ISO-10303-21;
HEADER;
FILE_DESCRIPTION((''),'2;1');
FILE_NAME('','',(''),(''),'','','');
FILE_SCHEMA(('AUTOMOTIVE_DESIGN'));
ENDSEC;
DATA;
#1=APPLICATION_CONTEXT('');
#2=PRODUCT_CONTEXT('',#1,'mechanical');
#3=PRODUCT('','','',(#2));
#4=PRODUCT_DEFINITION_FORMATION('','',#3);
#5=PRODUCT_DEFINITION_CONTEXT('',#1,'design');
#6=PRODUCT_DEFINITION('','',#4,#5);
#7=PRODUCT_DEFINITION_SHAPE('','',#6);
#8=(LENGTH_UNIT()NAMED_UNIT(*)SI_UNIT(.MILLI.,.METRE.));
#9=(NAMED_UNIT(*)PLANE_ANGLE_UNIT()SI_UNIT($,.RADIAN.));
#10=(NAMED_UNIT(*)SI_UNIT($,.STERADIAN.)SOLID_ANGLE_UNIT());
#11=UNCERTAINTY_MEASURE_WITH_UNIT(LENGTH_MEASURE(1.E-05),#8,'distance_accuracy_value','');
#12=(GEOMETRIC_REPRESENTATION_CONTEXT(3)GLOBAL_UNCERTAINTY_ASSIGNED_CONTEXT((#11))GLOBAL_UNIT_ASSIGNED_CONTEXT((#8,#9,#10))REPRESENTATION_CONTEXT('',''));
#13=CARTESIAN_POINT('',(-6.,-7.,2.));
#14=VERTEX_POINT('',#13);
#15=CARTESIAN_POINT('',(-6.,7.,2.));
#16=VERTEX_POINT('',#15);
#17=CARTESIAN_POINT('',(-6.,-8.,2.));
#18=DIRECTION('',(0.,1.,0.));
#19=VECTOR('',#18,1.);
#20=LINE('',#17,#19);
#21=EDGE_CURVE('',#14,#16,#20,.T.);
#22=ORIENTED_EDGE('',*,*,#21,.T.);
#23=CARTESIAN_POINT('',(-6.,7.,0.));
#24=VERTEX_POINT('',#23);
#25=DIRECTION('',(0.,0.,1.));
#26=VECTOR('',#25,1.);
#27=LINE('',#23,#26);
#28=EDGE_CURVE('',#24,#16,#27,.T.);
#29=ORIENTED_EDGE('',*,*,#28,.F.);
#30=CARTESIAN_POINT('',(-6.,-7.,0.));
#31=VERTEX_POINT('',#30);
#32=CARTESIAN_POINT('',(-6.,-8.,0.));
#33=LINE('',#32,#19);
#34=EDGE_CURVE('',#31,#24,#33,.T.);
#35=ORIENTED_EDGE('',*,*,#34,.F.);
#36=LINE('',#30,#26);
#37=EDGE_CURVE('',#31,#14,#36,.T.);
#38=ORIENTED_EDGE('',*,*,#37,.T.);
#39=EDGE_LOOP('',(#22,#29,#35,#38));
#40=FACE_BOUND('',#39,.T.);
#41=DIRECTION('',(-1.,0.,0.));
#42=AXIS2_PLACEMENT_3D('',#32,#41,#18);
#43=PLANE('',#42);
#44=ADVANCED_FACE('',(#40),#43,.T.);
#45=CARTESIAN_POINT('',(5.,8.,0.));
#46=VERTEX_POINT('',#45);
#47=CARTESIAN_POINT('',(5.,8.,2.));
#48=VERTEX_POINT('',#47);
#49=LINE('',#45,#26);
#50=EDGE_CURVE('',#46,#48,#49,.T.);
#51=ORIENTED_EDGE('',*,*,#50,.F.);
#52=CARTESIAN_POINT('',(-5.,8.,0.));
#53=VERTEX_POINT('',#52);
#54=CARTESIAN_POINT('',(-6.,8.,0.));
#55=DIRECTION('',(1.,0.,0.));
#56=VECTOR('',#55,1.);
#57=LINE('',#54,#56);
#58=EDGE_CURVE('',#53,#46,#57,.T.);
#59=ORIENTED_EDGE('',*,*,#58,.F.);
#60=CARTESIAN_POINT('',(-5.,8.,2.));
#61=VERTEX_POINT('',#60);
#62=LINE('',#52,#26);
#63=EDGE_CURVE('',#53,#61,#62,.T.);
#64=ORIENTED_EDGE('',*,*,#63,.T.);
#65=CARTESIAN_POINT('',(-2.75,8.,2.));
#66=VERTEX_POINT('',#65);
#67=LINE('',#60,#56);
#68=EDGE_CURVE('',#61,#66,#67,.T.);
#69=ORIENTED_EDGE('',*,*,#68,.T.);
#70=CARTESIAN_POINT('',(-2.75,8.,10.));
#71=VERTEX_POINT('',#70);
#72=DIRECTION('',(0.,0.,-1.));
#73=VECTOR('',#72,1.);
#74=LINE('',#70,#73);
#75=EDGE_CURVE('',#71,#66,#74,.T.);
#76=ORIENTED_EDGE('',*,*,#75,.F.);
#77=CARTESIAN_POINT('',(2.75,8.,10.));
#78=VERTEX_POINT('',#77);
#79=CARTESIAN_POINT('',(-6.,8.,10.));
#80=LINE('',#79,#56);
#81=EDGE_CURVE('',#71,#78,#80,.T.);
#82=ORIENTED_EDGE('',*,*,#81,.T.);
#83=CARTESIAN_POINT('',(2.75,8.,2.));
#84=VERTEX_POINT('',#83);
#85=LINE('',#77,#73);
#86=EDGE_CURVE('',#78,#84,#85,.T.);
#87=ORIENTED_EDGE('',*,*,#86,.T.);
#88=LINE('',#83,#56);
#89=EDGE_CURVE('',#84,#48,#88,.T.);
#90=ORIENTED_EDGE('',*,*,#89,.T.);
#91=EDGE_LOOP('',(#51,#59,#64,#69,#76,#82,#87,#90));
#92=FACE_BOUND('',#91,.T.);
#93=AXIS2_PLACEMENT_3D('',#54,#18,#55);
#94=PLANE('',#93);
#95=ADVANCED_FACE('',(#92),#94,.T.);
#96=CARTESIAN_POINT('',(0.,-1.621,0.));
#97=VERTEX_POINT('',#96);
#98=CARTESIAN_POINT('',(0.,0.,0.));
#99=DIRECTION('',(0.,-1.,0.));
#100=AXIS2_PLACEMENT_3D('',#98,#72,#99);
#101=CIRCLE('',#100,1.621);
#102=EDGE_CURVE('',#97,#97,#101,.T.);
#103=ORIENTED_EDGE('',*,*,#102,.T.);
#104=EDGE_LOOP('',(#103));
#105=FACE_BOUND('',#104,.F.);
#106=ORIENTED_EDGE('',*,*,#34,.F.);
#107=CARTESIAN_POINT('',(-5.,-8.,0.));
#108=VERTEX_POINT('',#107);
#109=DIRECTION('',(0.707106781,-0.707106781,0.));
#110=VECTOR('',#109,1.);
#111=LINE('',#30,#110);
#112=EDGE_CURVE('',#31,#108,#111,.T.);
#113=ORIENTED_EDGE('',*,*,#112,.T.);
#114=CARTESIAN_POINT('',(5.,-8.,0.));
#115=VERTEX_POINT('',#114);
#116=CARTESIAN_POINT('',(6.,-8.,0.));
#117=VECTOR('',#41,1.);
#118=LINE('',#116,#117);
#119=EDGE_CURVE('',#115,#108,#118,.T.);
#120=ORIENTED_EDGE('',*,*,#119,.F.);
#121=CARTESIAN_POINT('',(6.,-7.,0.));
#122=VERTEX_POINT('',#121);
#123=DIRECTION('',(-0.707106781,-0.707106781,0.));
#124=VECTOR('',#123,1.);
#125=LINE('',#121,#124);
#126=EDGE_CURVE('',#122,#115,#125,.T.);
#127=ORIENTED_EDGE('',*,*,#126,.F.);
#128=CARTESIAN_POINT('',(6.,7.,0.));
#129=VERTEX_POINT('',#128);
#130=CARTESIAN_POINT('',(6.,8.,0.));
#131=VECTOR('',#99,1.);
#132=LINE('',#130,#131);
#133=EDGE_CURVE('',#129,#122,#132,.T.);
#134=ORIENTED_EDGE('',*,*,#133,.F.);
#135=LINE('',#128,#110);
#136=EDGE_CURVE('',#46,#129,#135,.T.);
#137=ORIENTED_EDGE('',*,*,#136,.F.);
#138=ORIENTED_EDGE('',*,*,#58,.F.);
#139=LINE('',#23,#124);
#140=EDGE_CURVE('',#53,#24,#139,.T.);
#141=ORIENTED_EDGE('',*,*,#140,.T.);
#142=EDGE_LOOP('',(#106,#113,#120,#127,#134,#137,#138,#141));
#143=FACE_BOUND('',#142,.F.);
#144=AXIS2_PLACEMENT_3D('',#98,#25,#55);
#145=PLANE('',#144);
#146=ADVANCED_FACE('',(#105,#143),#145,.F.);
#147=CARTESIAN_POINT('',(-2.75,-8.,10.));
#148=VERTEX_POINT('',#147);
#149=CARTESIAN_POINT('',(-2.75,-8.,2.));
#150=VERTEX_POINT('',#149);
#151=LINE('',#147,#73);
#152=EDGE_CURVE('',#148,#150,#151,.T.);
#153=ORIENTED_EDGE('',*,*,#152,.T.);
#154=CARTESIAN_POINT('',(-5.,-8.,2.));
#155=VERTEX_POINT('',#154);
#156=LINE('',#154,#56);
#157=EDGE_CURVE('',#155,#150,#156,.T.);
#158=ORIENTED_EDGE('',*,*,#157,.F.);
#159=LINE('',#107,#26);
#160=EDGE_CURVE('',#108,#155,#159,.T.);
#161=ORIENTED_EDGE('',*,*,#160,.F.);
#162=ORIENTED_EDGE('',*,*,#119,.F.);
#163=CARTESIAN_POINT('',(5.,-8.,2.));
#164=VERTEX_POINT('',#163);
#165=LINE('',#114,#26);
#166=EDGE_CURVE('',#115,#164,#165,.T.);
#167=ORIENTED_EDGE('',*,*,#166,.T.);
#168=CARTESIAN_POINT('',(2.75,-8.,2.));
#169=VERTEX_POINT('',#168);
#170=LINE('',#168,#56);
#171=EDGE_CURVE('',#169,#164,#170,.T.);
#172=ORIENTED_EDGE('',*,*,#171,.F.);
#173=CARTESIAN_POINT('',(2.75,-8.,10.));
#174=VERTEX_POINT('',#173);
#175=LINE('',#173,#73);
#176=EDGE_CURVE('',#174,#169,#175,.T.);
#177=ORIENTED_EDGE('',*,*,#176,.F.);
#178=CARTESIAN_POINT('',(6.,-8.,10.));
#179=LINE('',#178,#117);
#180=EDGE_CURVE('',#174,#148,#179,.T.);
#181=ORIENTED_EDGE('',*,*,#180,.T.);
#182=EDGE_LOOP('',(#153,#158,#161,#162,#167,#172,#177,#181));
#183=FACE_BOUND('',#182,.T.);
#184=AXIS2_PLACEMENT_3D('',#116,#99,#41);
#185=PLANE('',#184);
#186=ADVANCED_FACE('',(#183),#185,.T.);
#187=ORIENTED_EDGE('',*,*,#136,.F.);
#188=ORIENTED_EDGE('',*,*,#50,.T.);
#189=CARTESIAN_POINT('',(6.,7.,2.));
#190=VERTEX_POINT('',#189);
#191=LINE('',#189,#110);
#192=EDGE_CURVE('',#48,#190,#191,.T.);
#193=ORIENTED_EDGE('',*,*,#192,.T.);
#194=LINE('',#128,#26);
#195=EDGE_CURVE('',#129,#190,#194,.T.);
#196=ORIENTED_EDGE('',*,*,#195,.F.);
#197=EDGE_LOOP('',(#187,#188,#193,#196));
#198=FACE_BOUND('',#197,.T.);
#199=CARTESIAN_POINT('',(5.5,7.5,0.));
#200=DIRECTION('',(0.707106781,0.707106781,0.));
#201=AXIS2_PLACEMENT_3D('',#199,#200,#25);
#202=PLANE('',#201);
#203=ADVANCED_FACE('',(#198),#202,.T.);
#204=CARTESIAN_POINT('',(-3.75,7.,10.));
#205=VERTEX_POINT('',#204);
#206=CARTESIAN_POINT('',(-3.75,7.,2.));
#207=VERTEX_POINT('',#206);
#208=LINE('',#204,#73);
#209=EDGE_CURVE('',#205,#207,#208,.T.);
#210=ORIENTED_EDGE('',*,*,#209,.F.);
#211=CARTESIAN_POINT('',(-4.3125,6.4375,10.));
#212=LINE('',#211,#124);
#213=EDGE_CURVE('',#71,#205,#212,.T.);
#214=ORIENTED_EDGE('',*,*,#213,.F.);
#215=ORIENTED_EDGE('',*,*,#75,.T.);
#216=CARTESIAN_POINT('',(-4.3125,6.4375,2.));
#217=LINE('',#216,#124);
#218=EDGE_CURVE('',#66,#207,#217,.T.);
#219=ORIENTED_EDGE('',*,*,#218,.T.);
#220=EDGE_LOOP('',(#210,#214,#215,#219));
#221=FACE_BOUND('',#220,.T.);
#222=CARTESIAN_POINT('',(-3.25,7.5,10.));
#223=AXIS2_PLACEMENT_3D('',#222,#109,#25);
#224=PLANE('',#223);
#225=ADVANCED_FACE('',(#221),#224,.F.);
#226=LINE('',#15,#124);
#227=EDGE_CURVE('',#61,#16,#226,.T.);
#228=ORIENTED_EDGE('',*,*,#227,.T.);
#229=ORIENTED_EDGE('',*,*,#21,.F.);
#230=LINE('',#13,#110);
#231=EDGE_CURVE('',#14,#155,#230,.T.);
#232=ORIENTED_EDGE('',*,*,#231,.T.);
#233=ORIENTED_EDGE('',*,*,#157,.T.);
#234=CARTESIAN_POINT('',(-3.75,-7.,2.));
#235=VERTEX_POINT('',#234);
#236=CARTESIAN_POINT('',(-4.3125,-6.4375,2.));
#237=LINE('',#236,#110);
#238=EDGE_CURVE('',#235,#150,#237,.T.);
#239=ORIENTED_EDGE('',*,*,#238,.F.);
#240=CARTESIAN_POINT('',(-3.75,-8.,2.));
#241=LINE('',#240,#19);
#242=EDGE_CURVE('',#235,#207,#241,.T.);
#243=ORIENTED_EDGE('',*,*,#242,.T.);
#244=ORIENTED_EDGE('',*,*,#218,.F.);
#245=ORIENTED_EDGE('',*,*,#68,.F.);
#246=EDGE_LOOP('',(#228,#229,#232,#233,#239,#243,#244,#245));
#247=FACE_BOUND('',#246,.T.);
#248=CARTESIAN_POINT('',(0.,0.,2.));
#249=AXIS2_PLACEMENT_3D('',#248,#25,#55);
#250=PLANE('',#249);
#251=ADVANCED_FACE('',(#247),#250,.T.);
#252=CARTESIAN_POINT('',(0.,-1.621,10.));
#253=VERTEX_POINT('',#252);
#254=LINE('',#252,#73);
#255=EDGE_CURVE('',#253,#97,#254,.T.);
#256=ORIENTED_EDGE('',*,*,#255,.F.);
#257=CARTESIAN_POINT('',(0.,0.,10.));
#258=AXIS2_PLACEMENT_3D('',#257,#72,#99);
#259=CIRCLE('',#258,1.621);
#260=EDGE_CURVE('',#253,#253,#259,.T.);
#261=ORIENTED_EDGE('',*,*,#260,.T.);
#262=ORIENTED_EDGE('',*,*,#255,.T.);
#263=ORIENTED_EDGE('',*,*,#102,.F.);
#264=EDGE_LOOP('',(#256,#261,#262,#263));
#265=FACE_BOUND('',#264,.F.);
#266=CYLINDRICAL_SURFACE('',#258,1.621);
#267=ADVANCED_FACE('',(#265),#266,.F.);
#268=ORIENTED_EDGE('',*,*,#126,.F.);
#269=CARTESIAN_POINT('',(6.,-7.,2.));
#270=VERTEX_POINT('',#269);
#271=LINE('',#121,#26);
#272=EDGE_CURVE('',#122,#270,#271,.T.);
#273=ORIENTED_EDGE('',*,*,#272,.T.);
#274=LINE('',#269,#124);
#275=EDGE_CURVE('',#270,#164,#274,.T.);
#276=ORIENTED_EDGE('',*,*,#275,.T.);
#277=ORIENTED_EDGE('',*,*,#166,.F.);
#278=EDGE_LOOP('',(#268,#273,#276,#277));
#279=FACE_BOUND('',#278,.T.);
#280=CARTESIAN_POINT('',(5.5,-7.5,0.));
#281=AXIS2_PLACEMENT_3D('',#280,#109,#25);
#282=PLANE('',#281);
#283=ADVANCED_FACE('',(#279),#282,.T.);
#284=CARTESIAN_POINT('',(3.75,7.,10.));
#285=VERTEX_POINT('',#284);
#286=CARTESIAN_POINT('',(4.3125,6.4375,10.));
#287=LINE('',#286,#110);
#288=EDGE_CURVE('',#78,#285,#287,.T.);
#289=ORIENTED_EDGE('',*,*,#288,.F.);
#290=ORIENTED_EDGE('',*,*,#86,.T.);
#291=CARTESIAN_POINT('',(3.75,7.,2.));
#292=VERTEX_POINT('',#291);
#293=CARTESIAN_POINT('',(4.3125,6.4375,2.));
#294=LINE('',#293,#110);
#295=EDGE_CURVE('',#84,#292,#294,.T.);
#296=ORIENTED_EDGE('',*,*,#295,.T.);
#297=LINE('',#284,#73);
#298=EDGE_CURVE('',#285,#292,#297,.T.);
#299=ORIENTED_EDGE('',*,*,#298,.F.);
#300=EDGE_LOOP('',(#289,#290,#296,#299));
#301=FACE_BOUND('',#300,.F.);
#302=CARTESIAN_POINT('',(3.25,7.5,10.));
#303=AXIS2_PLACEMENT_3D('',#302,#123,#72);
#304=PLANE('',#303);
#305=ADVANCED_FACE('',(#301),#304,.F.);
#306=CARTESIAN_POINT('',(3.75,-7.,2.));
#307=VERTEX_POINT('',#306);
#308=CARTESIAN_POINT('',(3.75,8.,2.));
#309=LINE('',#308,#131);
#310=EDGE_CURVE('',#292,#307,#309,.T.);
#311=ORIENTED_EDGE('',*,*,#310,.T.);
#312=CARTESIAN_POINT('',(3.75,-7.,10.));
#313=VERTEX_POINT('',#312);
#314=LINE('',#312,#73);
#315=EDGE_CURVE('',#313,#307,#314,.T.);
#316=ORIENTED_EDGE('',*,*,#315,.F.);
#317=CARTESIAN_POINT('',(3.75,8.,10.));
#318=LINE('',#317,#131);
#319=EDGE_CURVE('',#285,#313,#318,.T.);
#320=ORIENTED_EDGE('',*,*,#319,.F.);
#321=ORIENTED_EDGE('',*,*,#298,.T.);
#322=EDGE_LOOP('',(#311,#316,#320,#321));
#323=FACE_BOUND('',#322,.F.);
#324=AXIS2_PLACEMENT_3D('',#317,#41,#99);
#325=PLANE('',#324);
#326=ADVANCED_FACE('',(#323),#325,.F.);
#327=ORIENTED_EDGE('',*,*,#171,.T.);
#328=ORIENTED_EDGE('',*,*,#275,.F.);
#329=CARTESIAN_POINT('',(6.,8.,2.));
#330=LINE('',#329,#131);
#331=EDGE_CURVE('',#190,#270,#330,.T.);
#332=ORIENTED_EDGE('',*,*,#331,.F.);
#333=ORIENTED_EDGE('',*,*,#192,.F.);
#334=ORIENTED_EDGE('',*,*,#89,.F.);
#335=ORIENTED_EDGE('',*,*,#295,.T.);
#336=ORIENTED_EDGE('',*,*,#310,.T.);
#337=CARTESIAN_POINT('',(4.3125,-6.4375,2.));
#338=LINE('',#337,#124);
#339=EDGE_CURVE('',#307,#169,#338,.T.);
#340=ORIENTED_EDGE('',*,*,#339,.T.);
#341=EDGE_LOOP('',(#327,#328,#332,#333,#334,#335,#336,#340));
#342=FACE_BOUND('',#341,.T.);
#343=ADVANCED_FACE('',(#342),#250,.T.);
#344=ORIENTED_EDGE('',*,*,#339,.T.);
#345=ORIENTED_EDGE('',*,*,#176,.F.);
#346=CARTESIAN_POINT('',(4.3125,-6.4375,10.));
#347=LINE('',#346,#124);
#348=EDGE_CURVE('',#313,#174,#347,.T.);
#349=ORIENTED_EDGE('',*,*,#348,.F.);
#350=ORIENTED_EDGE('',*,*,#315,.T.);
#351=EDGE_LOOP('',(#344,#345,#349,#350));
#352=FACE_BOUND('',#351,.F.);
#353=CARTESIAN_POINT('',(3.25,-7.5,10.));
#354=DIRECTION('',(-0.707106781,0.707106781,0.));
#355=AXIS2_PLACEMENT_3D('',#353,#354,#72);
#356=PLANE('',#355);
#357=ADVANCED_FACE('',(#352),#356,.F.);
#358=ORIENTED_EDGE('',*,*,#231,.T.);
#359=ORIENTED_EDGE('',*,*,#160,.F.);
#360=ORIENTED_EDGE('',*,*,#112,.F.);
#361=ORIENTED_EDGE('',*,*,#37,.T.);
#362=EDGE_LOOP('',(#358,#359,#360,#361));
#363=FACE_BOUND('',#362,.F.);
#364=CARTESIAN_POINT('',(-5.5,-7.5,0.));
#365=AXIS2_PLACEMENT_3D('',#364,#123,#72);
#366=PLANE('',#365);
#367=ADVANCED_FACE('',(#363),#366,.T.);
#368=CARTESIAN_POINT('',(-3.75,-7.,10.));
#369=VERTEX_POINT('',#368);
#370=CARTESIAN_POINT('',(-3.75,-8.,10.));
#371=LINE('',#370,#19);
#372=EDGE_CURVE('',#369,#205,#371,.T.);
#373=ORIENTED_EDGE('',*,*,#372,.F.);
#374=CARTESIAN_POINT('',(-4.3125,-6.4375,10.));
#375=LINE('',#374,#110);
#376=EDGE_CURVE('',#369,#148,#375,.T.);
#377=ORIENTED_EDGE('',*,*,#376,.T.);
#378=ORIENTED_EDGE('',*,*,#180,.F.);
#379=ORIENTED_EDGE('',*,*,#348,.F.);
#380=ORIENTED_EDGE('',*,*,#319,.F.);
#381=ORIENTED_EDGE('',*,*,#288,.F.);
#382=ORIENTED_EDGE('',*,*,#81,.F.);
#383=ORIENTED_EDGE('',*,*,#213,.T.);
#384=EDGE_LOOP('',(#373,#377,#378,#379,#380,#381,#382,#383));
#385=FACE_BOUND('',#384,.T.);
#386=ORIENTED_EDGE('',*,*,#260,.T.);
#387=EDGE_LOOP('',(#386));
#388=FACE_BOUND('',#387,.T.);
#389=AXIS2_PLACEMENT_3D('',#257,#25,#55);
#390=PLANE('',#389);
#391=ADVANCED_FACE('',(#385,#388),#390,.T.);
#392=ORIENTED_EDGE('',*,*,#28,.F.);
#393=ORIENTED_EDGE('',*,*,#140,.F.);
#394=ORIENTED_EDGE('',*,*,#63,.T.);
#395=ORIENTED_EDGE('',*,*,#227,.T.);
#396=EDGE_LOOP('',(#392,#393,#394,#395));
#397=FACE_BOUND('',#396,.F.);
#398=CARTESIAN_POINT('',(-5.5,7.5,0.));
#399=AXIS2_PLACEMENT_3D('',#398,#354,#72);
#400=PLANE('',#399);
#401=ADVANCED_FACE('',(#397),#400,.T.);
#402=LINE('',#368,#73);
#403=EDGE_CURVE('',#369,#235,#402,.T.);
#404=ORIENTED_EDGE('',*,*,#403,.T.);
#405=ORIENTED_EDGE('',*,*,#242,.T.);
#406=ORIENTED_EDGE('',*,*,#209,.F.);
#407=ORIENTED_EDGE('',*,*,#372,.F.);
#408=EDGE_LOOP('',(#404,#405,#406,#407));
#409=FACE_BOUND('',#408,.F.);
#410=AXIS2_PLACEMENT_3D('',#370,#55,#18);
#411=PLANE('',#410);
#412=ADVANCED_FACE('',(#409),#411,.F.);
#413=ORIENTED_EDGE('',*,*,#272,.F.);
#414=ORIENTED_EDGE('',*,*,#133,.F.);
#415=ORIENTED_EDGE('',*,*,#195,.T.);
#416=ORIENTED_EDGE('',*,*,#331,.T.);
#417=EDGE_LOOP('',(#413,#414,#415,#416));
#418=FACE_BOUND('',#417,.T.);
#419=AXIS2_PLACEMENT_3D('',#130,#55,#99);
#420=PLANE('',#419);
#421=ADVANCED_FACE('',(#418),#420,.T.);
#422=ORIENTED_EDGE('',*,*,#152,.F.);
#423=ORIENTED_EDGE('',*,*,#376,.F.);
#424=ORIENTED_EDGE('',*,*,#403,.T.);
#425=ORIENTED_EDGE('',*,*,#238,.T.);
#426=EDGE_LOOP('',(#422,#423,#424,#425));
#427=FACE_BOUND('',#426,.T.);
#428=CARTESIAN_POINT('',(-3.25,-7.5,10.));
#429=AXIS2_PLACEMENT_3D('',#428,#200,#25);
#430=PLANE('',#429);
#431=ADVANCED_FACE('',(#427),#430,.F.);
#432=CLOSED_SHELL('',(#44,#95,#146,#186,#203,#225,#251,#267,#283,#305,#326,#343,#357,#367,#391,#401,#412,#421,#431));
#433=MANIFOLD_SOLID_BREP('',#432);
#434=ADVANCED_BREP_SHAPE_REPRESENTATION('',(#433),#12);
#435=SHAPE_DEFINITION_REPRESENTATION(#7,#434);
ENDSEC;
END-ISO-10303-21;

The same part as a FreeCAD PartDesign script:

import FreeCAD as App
import Part
import Sketcher

V = App.Vector


def edges_at(feature, points):
    """Names of the edges that pass closest to the given points."""
    edges = feature.Shape.Edges
    near = lambda p: min(range(len(edges)), key=lambda i: edges[i].distToShape(Part.Vertex(*p))[0])
    return sorted({f"Edge{near(p) + 1}" for p in points})


def add_polygon(sketch, points):
    """Adds a closed chain of lines whose ends are joined by coincident constraints."""
    first, n = sketch.GeometryCount, len(points)
    for a, b in zip(points, points[1:] + points[:1]):
        sketch.addGeometry(Part.LineSegment(App.Vector(*a, 0), App.Vector(*b, 0)), False)
    for i in range(n):
        sketch.addConstraint(Sketcher.Constraint("Coincident", first + i, 2, first + (i + 1) % n, 1))

doc = App.newDocument("Part")
body = doc.addObject("PartDesign::Body", "Body")

sketch1 = body.newObject("Sketcher::SketchObject", "Sketch")
sketch1.AttachmentSupport = (doc.getObject("XY_Plane"), [""])
sketch1.MapMode = "FlatFace"
add_polygon(sketch1, [(6, 8), (-6, 8), (-6, -8), (6, -8)])
sketch1.addConstraint([
    Sketcher.Constraint("Horizontal", 0),
    Sketcher.Constraint("Vertical", 1),
    Sketcher.Constraint("Horizontal", 2),
    Sketcher.Constraint("Vertical", 3),
    Sketcher.Constraint("Symmetric", 0, 2, 2, 2, -1, 1),
    Sketcher.Constraint("DistanceX", 0, 2, 0, 1, 12.0),
    Sketcher.Constraint("DistanceY", 1, 2, 1, 1, 16.0),
])
pad1 = body.newObject("PartDesign::Pad", "Pad")
pad1.Profile = sketch1
pad1.Length = 10

sketch2 = body.newObject("Sketcher::SketchObject", "Sketch001")
sketch2.AttachmentSupport = (doc.getObject("XY_Plane"), [""])
sketch2.MapMode = "FlatFace"
sketch2.AttachmentOffset = App.Placement(V(0, 0, 10), App.Rotation())
add_polygon(sketch2, [(3.8, -8), (6, -8), (6, 8), (3.8, 8)])
add_polygon(sketch2, [(-6, -8), (-3.8, -8), (-3.8, 8), (-6, 8)])
sketch2.addConstraint([
    Sketcher.Constraint("Horizontal", 0),
    Sketcher.Constraint("Vertical", 1),
    Sketcher.Constraint("Horizontal", 2),
    Sketcher.Constraint("Vertical", 3),
    Sketcher.Constraint("Horizontal", 4),
    Sketcher.Constraint("Vertical", 5),
    Sketcher.Constraint("Horizontal", 6),
    Sketcher.Constraint("Vertical", 7),
    Sketcher.Constraint("Symmetric", 2, 2, 4, 2, -1, 1),
    Sketcher.Constraint("Symmetric", 0, 2, 6, 2, -1, 1),
    Sketcher.Constraint("Horizontal", 3, 2, 4, 2),
    Sketcher.Constraint("DistanceY", 1, 1, 1, 2, 16.0),
    Sketcher.Constraint("DistanceX", 6, 2, 1, 2, 12.0),
    Sketcher.Constraint("DistanceX", 4, 2, 3, 2, 7.5),
])
pocket1 = body.newObject("PartDesign::Pocket", "Pocket")
pocket1.Profile = sketch2
pocket1.Length = 8
doc.recompute()

chamfer = body.newObject("PartDesign::Chamfer", "Chamfer")
chamfer.Base = (pocket1, edges_at(pocket1, [
    (6, -8, 1),
    (-6, -8, 1),
    (6, 8, 1),
    (-6, 8, 1),
    (-3.75, -8, 6),
    (-3.75, 8, 6),
    (3.75, 8, 6),
    (3.75, -8, 6),
]))
chamfer.Size = 1

sketch3 = body.newObject("Sketcher::SketchObject", "Sketch002")
sketch3.AttachmentSupport = (doc.getObject("XY_Plane"), [""])
sketch3.MapMode = "FlatFace"
sketch3.AttachmentOffset = App.Placement(V(0, 0, 10), App.Rotation())
sketch3.addGeometry(Part.Circle(V(0, 0, 0), V(0, 0, 1), 1.6), False)
sketch3.addConstraint([
    Sketcher.Constraint("Coincident", 0, 3, -1, 1),
    Sketcher.Constraint("Diameter", 0, 3.242),
])
doc.recompute()
hole = body.newObject("PartDesign::Hole", "Hole")
hole.Profile = sketch3
hole.ThreadType = "None"
hole.Diameter = 3.242
hole.DepthType = "ThroughAll"

doc.recompute()
